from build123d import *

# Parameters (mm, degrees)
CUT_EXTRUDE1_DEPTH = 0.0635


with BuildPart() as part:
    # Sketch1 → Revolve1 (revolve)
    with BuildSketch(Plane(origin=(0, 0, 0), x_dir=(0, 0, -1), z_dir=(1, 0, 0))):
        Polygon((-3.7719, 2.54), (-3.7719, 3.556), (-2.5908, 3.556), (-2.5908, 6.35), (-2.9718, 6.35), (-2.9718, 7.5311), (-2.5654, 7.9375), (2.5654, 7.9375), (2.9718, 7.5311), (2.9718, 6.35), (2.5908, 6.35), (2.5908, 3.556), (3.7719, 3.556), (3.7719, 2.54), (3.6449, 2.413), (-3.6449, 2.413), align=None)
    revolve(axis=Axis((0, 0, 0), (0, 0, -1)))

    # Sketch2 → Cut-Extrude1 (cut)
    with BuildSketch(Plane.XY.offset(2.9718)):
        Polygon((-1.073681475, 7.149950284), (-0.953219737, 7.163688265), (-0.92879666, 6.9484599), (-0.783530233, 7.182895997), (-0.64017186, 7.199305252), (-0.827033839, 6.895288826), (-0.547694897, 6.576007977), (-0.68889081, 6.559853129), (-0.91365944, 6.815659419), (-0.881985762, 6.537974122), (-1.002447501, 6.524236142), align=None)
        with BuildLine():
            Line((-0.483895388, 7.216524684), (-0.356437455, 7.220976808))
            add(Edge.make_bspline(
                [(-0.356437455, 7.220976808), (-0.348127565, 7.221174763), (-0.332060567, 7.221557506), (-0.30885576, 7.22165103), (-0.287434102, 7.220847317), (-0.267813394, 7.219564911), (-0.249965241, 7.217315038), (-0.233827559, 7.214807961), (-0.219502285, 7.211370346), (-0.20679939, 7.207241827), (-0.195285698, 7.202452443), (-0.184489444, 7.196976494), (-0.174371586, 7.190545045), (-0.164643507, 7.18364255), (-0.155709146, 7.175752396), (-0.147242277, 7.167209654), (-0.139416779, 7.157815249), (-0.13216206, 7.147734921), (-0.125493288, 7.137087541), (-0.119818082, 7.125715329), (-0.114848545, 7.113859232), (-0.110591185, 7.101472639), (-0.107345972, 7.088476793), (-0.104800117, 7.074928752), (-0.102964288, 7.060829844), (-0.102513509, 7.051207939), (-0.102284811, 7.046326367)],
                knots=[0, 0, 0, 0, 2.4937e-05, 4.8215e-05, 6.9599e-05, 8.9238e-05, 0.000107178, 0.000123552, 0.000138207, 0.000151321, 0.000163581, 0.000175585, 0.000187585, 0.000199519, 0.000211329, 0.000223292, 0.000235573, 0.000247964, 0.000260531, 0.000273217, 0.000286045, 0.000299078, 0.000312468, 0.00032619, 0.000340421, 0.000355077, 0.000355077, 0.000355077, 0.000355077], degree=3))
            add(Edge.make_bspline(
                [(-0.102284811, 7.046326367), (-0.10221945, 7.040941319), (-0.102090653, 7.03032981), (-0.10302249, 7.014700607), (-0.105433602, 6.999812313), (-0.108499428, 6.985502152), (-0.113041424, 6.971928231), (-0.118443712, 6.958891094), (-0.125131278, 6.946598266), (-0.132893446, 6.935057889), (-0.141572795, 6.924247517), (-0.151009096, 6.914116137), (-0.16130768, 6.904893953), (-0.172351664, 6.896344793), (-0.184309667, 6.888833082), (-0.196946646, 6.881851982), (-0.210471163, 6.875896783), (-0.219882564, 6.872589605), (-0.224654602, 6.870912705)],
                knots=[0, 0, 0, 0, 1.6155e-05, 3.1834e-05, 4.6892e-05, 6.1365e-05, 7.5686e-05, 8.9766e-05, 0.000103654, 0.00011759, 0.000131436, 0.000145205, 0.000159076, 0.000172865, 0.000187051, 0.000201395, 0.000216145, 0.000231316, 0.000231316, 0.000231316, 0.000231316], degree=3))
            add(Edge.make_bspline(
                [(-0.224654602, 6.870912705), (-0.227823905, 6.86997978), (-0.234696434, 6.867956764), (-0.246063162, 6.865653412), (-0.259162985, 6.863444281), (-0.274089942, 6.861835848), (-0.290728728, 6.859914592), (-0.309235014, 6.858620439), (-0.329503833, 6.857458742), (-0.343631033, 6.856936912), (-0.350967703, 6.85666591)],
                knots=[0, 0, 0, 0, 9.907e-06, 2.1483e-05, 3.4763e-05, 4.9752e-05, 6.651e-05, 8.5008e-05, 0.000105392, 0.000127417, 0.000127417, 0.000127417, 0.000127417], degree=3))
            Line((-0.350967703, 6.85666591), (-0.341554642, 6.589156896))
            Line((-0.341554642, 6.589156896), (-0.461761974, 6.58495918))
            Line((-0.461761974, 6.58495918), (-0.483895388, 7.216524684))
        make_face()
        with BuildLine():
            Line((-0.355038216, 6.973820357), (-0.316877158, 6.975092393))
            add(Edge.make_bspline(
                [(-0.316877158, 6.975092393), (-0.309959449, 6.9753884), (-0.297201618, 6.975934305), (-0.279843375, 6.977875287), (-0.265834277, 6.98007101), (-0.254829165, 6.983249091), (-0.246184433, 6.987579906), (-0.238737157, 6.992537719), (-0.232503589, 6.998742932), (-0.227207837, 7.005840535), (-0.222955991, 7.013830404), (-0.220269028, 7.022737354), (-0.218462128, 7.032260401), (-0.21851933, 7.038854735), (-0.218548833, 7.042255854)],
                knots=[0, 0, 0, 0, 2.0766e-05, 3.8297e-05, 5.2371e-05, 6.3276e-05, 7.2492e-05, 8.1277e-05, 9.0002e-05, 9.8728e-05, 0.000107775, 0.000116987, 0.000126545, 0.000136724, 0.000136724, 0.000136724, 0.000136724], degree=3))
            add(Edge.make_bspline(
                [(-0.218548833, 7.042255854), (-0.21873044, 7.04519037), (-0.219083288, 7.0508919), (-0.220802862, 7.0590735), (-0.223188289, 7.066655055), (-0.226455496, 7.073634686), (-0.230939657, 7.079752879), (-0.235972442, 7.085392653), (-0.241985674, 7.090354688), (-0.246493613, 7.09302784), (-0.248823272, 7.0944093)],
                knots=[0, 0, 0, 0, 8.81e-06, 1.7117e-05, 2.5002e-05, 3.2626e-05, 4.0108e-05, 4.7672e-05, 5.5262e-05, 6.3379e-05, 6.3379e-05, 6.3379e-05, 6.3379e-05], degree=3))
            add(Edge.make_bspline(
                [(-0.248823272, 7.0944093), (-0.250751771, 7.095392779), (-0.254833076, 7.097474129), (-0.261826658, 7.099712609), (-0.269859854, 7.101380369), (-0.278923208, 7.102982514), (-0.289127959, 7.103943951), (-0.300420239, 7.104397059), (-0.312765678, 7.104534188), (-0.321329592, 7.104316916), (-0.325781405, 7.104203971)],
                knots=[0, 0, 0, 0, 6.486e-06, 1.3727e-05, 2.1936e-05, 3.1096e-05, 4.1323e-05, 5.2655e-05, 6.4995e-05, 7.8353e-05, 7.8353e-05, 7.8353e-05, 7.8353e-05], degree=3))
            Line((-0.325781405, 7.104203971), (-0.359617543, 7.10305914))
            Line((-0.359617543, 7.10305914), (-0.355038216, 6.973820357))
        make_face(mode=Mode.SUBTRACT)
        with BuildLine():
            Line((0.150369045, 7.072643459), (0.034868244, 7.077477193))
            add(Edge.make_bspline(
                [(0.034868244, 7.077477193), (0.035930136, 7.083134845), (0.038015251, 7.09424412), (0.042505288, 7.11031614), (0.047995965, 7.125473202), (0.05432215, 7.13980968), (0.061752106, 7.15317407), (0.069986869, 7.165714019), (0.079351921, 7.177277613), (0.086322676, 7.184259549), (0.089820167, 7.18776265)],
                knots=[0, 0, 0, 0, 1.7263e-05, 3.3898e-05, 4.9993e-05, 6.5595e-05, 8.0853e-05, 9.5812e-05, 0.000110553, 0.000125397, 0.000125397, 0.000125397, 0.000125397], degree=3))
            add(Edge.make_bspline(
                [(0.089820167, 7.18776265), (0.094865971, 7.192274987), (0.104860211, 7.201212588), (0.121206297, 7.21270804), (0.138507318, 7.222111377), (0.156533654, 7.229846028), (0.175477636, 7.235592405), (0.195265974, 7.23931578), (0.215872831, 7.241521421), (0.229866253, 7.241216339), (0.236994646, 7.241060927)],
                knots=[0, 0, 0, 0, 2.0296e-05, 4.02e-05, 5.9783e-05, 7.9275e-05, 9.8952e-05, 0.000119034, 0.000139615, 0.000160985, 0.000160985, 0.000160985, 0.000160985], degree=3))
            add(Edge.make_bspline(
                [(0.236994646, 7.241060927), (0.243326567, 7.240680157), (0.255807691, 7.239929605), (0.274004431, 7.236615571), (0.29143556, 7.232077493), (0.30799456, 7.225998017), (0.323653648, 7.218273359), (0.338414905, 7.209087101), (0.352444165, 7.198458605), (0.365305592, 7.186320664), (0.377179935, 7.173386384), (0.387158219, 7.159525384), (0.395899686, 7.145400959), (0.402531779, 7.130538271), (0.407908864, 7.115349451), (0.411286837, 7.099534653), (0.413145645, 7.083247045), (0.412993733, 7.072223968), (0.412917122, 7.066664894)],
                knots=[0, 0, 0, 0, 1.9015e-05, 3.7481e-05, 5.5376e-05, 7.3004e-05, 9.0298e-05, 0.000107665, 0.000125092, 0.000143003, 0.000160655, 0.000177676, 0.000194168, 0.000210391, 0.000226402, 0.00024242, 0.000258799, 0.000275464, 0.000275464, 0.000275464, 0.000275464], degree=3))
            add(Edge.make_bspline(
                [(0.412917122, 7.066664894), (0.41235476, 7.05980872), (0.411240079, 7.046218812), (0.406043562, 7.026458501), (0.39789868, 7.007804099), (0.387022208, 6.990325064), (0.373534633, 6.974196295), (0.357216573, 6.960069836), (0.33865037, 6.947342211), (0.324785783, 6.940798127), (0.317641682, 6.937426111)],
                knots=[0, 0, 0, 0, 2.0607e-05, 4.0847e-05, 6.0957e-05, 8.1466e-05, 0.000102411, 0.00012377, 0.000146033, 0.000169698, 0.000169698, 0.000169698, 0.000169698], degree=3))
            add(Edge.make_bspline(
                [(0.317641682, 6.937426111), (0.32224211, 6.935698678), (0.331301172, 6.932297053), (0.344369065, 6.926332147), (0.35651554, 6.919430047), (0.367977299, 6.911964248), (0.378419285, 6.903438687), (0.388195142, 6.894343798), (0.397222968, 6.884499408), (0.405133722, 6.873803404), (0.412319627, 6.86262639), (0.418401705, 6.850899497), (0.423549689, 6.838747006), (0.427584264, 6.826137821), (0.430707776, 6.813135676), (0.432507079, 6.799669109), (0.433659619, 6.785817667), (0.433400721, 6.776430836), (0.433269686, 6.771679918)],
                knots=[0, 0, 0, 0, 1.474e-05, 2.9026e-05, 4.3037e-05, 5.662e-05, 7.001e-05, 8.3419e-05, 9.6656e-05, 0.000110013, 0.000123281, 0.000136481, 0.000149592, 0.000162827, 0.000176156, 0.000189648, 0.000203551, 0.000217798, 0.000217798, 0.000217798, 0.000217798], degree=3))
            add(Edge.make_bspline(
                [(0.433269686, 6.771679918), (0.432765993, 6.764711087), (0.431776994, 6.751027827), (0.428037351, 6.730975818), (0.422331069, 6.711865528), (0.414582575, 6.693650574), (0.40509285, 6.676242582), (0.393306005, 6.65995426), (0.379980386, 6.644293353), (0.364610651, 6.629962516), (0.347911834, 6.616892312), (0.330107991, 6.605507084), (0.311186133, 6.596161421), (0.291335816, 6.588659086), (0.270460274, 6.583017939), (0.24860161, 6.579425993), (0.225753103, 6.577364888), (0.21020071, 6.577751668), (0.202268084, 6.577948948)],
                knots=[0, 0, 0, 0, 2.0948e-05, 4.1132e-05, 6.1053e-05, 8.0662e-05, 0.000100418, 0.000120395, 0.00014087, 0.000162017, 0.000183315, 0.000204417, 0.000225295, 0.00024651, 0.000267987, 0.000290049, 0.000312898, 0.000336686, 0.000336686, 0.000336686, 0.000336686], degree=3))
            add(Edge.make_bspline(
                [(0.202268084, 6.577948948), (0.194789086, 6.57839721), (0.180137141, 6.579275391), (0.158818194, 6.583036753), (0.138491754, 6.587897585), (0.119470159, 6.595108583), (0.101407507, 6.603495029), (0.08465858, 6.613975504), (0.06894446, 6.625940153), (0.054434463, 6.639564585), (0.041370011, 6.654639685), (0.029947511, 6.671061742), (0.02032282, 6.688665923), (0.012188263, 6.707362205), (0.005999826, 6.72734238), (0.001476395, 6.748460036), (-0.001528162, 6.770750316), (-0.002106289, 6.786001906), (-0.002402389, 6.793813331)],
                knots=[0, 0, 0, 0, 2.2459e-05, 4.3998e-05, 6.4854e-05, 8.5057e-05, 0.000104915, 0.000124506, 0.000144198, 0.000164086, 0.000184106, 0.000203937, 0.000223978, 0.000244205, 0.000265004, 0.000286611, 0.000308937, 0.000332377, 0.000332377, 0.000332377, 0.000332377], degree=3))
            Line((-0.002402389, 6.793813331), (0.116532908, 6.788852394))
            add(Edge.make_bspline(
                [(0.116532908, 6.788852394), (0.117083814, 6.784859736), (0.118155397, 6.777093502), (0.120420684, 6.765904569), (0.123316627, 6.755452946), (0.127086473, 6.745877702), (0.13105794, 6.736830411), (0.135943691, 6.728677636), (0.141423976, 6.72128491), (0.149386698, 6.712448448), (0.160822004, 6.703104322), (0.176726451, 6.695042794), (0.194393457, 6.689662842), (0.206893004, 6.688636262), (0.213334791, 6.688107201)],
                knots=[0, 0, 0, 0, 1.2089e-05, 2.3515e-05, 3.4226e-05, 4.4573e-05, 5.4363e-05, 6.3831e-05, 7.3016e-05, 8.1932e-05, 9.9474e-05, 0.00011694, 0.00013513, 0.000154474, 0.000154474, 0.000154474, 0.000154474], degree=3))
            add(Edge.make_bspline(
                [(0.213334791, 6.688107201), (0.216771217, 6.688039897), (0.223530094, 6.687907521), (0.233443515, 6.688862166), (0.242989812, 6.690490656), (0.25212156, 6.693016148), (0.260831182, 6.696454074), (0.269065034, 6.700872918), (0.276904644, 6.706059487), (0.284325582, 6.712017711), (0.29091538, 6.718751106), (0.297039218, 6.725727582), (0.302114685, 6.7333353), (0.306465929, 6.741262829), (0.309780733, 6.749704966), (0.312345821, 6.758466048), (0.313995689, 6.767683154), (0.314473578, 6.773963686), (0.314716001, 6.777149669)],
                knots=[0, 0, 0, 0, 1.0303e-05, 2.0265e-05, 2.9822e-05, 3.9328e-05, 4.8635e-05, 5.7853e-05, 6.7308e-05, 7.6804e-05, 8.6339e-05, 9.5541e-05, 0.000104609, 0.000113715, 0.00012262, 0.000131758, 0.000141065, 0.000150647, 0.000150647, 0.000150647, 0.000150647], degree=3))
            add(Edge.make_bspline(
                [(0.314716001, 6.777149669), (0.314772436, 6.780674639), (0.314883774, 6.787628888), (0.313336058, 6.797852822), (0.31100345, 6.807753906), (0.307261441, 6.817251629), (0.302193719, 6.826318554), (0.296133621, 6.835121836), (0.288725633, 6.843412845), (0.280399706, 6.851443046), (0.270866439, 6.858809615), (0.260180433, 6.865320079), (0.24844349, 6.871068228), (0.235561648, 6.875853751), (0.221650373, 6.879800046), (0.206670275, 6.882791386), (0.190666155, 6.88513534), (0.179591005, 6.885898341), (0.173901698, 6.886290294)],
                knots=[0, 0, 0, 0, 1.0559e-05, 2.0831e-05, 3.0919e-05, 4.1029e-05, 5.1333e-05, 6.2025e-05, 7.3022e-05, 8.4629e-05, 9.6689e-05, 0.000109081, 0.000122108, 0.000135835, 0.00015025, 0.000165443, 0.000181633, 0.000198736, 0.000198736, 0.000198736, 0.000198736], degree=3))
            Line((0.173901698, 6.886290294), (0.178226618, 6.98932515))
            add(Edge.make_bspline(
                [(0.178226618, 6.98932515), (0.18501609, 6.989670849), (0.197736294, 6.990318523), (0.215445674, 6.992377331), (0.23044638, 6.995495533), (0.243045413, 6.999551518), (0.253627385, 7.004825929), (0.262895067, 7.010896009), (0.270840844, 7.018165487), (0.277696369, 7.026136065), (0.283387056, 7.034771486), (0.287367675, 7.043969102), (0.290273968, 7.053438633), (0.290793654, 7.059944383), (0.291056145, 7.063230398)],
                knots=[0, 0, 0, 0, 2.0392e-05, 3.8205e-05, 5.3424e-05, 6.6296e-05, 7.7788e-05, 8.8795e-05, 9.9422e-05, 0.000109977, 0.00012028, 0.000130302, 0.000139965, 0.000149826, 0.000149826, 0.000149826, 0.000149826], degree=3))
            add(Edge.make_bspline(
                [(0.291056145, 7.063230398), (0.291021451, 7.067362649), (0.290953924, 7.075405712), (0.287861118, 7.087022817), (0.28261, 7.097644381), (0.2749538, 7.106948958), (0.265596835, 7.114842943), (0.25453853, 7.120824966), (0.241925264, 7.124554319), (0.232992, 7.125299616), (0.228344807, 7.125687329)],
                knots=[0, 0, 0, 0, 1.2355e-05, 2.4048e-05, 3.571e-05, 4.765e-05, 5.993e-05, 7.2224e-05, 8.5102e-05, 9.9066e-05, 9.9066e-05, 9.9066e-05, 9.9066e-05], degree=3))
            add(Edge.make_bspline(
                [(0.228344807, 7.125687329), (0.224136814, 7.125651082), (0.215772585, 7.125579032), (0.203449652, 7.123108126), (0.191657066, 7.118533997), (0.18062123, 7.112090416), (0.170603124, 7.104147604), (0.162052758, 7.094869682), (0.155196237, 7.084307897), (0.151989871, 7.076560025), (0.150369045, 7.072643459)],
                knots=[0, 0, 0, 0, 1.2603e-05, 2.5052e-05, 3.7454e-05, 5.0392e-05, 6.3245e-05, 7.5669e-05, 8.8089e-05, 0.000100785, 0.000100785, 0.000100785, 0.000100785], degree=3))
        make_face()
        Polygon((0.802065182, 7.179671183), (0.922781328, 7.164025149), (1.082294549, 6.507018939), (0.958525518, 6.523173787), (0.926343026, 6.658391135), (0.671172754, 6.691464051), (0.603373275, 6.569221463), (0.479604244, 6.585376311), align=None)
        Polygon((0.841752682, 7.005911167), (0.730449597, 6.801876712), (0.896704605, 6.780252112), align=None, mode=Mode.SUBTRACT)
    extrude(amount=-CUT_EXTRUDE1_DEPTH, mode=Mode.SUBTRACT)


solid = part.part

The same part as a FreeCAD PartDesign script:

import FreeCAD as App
import Part
import Sketcher
from FreeCAD import Vector
Q = App.Units.Quantity

doc = App.newDocument("Part")
body = doc.addObject("PartDesign::Body", "Body")

# Sketch on YZ plane
sketch1 = body.newObject("Sketcher::SketchObject", "Sketch")
sketch1.AttachmentSupport = (doc.getObject("YZ_Plane"), [""])
sketch1.MapMode = "FlatFace"
sketch1.addGeometry([
    Part.LineSegment(Vector(3.556, 3.7719, 0), Vector(2.54, 3.7719, 0)),  # 0
    Part.LineSegment(Vector(2.54, 3.7719, 0), Vector(2.413, 3.6449, 0)),  # 1
    Part.LineSegment(Vector(2.413, 3.6449, 0), Vector(2.413, -3.6449, 0)),  # 2
    Part.LineSegment(Vector(2.413, -3.6449, 0), Vector(2.54, -3.7719, 0)),  # 3
    Part.LineSegment(Vector(2.54, -3.7719, 0), Vector(3.556, -3.7719, 0)),  # 4
    Part.LineSegment(Vector(3.556, -3.7719, 0), Vector(3.556, -2.5908, 0)),  # 5
    Part.LineSegment(Vector(3.556, -2.5908, 0), Vector(6.35, -2.5908, 0)),  # 6
    Part.LineSegment(Vector(6.35, -2.5908, 0), Vector(6.35, -2.9718, 0)),  # 7
    Part.LineSegment(Vector(6.35, -2.9718, 0), Vector(7.5311, -2.9718, 0)),  # 8
    Part.LineSegment(Vector(7.5311, -2.9718, 0), Vector(7.9375, -2.5654, 0)),  # 9
    Part.LineSegment(Vector(7.9375, -2.5654, 0), Vector(7.9375, 2.5654, 0)),  # 10
    Part.LineSegment(Vector(7.9375, 2.5654, 0), Vector(7.5311, 2.9718, 0)),  # 11
    Part.LineSegment(Vector(7.5311, 2.9718, 0), Vector(6.35, 2.9718, 0)),  # 12
    Part.LineSegment(Vector(6.35, 2.9718, 0), Vector(6.35, 2.5908, 0)),  # 13
    Part.LineSegment(Vector(6.35, 2.5908, 0), Vector(3.556, 2.5908, 0)),  # 14
    Part.LineSegment(Vector(3.556, 2.5908, 0), Vector(3.556, 3.7719, 0)),  # 15
], False)
sketch1.addConstraint([
    Sketcher.Constraint("Coincident", 0, 2, 1, 1),
    Sketcher.Constraint("Coincident", 1, 2, 2, 1),
    Sketcher.Constraint("Coincident", 2, 2, 3, 1),
    Sketcher.Constraint("Coincident", 3, 2, 4, 1),
    Sketcher.Constraint("Coincident", 4, 2, 5, 1),
    Sketcher.Constraint("Coincident", 5, 2, 6, 1),
    Sketcher.Constraint("Coincident", 6, 2, 7, 1),
    Sketcher.Constraint("Coincident", 7, 2, 8, 1),
    Sketcher.Constraint("Coincident", 8, 2, 9, 1),
    Sketcher.Constraint("Coincident", 9, 2, 10, 1),
    Sketcher.Constraint("Coincident", 10, 2, 11, 1),
    Sketcher.Constraint("Coincident", 11, 2, 12, 1),
    Sketcher.Constraint("Coincident", 12, 2, 13, 1),
    Sketcher.Constraint("Coincident", 13, 2, 14, 1),
    Sketcher.Constraint("Coincident", 14, 2, 15, 1),
    Sketcher.Constraint("Coincident", 15, 2, 0, 1),
    Sketcher.Constraint("Horizontal", 0),
    Sketcher.Constraint("Vertical", 2),
    Sketcher.Constraint("Horizontal", 4),
    Sketcher.Constraint("Vertical", 5),
    Sketcher.Constraint("Horizontal", 6),
    Sketcher.Constraint("Vertical", 7),
    Sketcher.Constraint("Horizontal", 8),
    Sketcher.Constraint("Vertical", 10),
    Sketcher.Constraint("Horizontal", 12),
    Sketcher.Constraint("Vertical", 13),
    Sketcher.Constraint("Horizontal", 14),
    Sketcher.Constraint("Vertical", 15),
    Sketcher.Constraint("Symmetric", 0, 2, 3, 2, -1),
    Sketcher.Constraint("Symmetric", 8, 2, 11, 2, -1),
    Sketcher.Constraint("Symmetric", 6, 2, 13, 2, -1),
    Sketcher.Constraint("Perpendicular", 1, 3),
    Sketcher.Constraint("Perpendicular", 3, 9),
    Sketcher.Constraint("Perpendicular", 9, 11),
    Sketcher.Constraint("Vertical", 5, 2, 14, 2),
    Sketcher.Constraint("Equal", 12, 5),
    Sketcher.Constraint("Equal", 1, 3),
    Sketcher.Constraint("DistanceX", 0, 2, 0, 1, Q("0.04 in")),
    Sketcher.Constraint("DistanceX", 6, 1, 6, 2, Q("0.11 in")),
    Sketcher.Constraint("DistanceX", -1, 1, 0, 2, Q("0.1 in")),
    Sketcher.Constraint("DistanceY", 2, 2, 2, 1, Q("0.287 in")),
    Sketcher.Constraint("DistanceY", 7, 2, 7, 1, Q("0.015 in")),
    Sketcher.Constraint("DistanceY", 10, 1, 10, 2, Q("0.202 in")),
    Sketcher.Constraint("DistanceX", 8, 1, 8, 2, Q("0.0465 in")),
    Sketcher.Constraint("DistanceX", -1, 1, 1, 2, Q("0.095 in")),
])
revolution = body.newObject("PartDesign::Revolution", "Revolution")
revolution.Profile = sketch1
revolution.ReferenceAxis = (sketch1, ["V_Axis"])
revolution.Angle = 360

# Sketch on XY plane
sketch2 = body.newObject("Sketcher::SketchObject", "Sketch001")
sketch2.AttachmentSupport = (doc.getObject("XY_Plane"), [""])
sketch2.MapMode = "FlatFace"
sketch2.AttachmentOffset = App.Placement(Vector(0, 0, 0.117 * 25.4), App.Rotation())
sketch2.addGeometry([
    Part.LineSegment(Vector(-0.95322, 7.163688, 0), Vector(-1.073681, 7.14995, 0)),  # 0
    Part.LineSegment(Vector(-1.073681, 7.14995, 0), Vector(-1.002448, 6.524236, 0)),  # 1
    Part.LineSegment(Vector(-1.002448, 6.524236, 0), Vector(-0.881986, 6.537974, 0)),  # 2
    Part.LineSegment(Vector(-0.881986, 6.537974, 0), Vector(-0.913659, 6.815659, 0)),  # 3
    Part.LineSegment(Vector(-0.913659, 6.815659, 0), Vector(-0.688891, 6.559853, 0)),  # 4
    Part.LineSegment(Vector(-0.688891, 6.559853, 0), Vector(-0.547695, 6.576008, 0)),  # 5
    Part.LineSegment(Vector(-0.547695, 6.576008, 0), Vector(-0.827034, 6.895289, 0)),  # 6
    Part.LineSegment(Vector(-0.827034, 6.895289, 0), Vector(-0.640172, 7.199305, 0)),  # 7
    Part.LineSegment(Vector(-0.640172, 7.199305, 0), Vector(-0.78353, 7.182896, 0)),  # 8
    Part.LineSegment(Vector(-0.78353, 7.182896, 0), Vector(-0.928797, 6.94846, 0)),  # 9
    Part.LineSegment(Vector(-0.928797, 6.94846, 0), Vector(-0.95322, 7.163688, 0)),  # 10
    Part.LineSegment(Vector(-0.356437, 7.220977, 0), Vector(-0.483895, 7.216525, 0)),  # 11
    Part.LineSegment(Vector(-0.483895, 7.216525, 0), Vector(-0.461762, 6.584959, 0)),  # 12
    Part.LineSegment(Vector(-0.461762, 6.584959, 0), Vector(-0.341555, 6.589157, 0)),  # 13
    Part.LineSegment(Vector(-0.341555, 6.589157, 0), Vector(-0.350968, 6.856666, 0)),  # 14
    Part.BSplineCurve([Vector(-0.224655, 6.870913, 0), Vector(-0.227824, 6.86998, 0), Vector(-0.234696, 6.867957, 0), Vector(-0.246063, 6.865653, 0), Vector(-0.259163, 6.863444, 0), Vector(-0.27409, 6.861836, 0), Vector(-0.290729, 6.859915, 0), Vector(-0.309235, 6.85862, 0), Vector(-0.329504, 6.857459, 0), Vector(-0.343631, 6.856937, 0), Vector(-0.350968, 6.856666, 0)], [4, 1, 1, 1, 1, 1, 1, 1, 4], [0, 0.000009907, 0.000021483, 0.000034763, 0.000049752, 0.00006651, 0.000085008, 0.000105392, 0.000127417], False, 3, [1, 1, 1, 1, 1, 1, 1, 1, 1, 1, 1], False),  # 15
    Part.BSplineCurve([Vector(-0.102285, 7.046326, 0), Vector(-0.102219, 7.040941, 0), Vector(-0.102091, 7.03033, 0), Vector(-0.103022, 7.014701, 0), Vector(-0.105434, 6.999812, 0), Vector(-0.108499, 6.985502, 0), Vector(-0.113041, 6.971928, 0), Vector(-0.118444, 6.958891, 0), Vector(-0.125131, 6.946598, 0), Vector(-0.132893, 6.935058, 0), Vector(-0.141573, 6.924248, 0), Vector(-0.151009, 6.914116, 0), Vector(-0.161308, 6.904894, 0), Vector(-0.172352, 6.896345, 0), Vector(-0.18431, 6.888833, 0), Vector(-0.196947, 6.881852, 0), Vector(-0.210471, 6.875897, 0), Vector(-0.219883, 6.87259, 0), Vector(-0.224655, 6.870913, 0)], [4, 1, 1, 1, 1, 1, 1, 1, 1, 1, 1, 1, 1, 1, 1, 1, 4], [0, 0.000016155, 0.000031834, 0.000046892, 0.000061365, 0.000075686, 0.000089766, 0.000103654, 0.00011759, 0.000131436, 0.000145205, 0.000159076, 0.000172865, 0.000187051, 0.000201395, 0.000216145, 0.000231316], False, 3, [1, 1, 1, 1, 1, 1, 1, 1, 1, 1, 1, 1, 1, 1, 1, 1, 1, 1, 1], False),  # 16
    Part.BSplineCurve([Vector(-0.356437, 7.220977, 0), Vector(-0.348128, 7.221175, 0), Vector(-0.332061, 7.221558, 0), Vector(-0.308856, 7.221651, 0), Vector(-0.287434, 7.220847, 0), Vector(-0.267813, 7.219565, 0), Vector(-0.249965, 7.217315, 0), Vector(-0.233828, 7.214808, 0), Vector(-0.219502, 7.21137, 0), Vector(-0.206799, 7.207242, 0), Vector(-0.195286, 7.202452, 0), Vector(-0.184489, 7.196976, 0), Vector(-0.174372, 7.190545, 0), Vector(-0.164644, 7.183643, 0), Vector(-0.155709, 7.175752, 0), Vector(-0.147242, 7.16721, 0), Vector(-0.139417, 7.157815, 0), Vector(-0.132162, 7.147735, 0), Vector(-0.125493, 7.137088, 0), Vector(-0.119818, 7.125715, 0), Vector(-0.114849, 7.113859, 0), Vector(-0.110591, 7.101473, 0), Vector(-0.107346, 7.088477, 0), Vector(-0.1048, 7.074929, 0), Vector(-0.102964, 7.06083, 0), Vector(-0.102514, 7.051208, 0), Vector(-0.102285, 7.046326, 0)], [4, 1, 1, 1, 1, 1, 1, 1, 1, 1, 1, 1, 1, 1, 1, 1, 1, 1, 1, 1, 1, 1, 1, 1, 4], [0, 0.000024937, 0.000048215, 0.000069599, 0.000089238, 0.000107178, 0.000123552, 0.000138207, 0.000151321, 0.000163581, 0.000175585, 0.000187585, 0.000199519, 0.000211329, 0.000223292, 0.000235573, 0.000247964, 0.000260531, 0.000273217, 0.000286045, 0.000299078, 0.000312468, 0.00032619, 0.000340421, 0.000355077], False, 3, [1, 1, 1, 1, 1, 1, 1, 1, 1, 1, 1, 1, 1, 1, 1, 1, 1, 1, 1, 1, 1, 1, 1, 1, 1, 1, 1], False),  # 17
    Part.LineSegment(Vector(-0.355038, 6.97382, 0), Vector(-0.359618, 7.103059, 0)),  # 18
    Part.LineSegment(Vector(-0.359618, 7.103059, 0), Vector(-0.325781, 7.104204, 0)),  # 19
    Part.BSplineCurve([Vector(-0.248823, 7.094409, 0), Vector(-0.250752, 7.095393, 0), Vector(-0.254833, 7.097474, 0), Vector(-0.261827, 7.099713, 0), Vector(-0.26986, 7.10138, 0), Vector(-0.278923, 7.102983, 0), Vector(-0.289128, 7.103944, 0), Vector(-0.30042, 7.104397, 0), Vector(-0.312766, 7.104534, 0), Vector(-0.32133, 7.104317, 0), Vector(-0.325781, 7.104204, 0)], [4, 1, 1, 1, 1, 1, 1, 1, 4], [0, 0.000006486, 0.000013727, 0.000021936, 0.000031096, 0.000041323, 0.000052655, 0.000064995, 0.000078353], False, 3, [1, 1, 1, 1, 1, 1, 1, 1, 1, 1, 1], False),  # 20
    Part.BSplineCurve([Vector(-0.218549, 7.042256, 0), Vector(-0.21873, 7.04519, 0), Vector(-0.219083, 7.050892, 0), Vector(-0.220803, 7.059074, 0), Vector(-0.223188, 7.066655, 0), Vector(-0.226455, 7.073635, 0), Vector(-0.23094, 7.079753, 0), Vector(-0.235972, 7.085393, 0), Vector(-0.241986, 7.090355, 0), Vector(-0.246494, 7.093028, 0), Vector(-0.248823, 7.094409, 0)], [4, 1, 1, 1, 1, 1, 1, 1, 4], [0, 0.00000881, 0.000017117, 0.000025002, 0.000032626, 0.000040108, 0.000047672, 0.000055262, 0.000063379], False, 3, [1, 1, 1, 1, 1, 1, 1, 1, 1, 1, 1], False),  # 21
    Part.BSplineCurve([Vector(-0.316877, 6.975092, 0), Vector(-0.309959, 6.975388, 0), Vector(-0.297202, 6.975934, 0), Vector(-0.279843, 6.977875, 0), Vector(-0.265834, 6.980071, 0), Vector(-0.254829, 6.983249, 0), Vector(-0.246184, 6.98758, 0), Vector(-0.238737, 6.992538, 0), Vector(-0.232504, 6.998743, 0), Vector(-0.227208, 7.005841, 0), Vector(-0.222956, 7.01383, 0), Vector(-0.220269, 7.022737, 0), Vector(-0.218462, 7.03226, 0), Vector(-0.218519, 7.038855, 0), Vector(-0.218549, 7.042256, 0)], [4, 1, 1, 1, 1, 1, 1, 1, 1, 1, 1, 1, 4], [0, 0.000020766, 0.000038297, 0.000052371, 0.000063276, 0.000072492, 0.000081277, 0.000090002, 0.000098728, 0.000107775, 0.000116987, 0.000126545, 0.000136724], False, 3, [1, 1, 1, 1, 1, 1, 1, 1, 1, 1, 1, 1, 1, 1, 1], False),  # 22
    Part.LineSegment(Vector(-0.316877, 6.975092, 0), Vector(-0.355038, 6.97382, 0)),  # 23
    Part.LineSegment(Vector(0.034868, 7.077477, 0), Vector(0.150369, 7.072643, 0)),  # 24
    Part.BSplineCurve([Vector(0.228345, 7.125687, 0), Vector(0.224137, 7.125651, 0), Vector(0.215773, 7.125579, 0), Vector(0.20345, 7.123108, 0), Vector(0.191657, 7.118534, 0), Vector(0.180621, 7.11209, 0), Vector(0.170603, 7.104148, 0), Vector(0.162053, 7.09487, 0), Vector(0.155196, 7.084308, 0), Vector(0.15199, 7.07656, 0), Vector(0.150369, 7.072643, 0)], [4, 1, 1, 1, 1, 1, 1, 1, 4], [0, 0.000012603, 0.000025052, 0.000037454, 0.000050392, 0.000063245, 0.000075669, 0.000088089, 0.000100785], False, 3, [1, 1, 1, 1, 1, 1, 1, 1, 1, 1, 1], False),  # 25
    Part.BSplineCurve([Vector(0.291056, 7.06323, 0), Vector(0.291021, 7.067363, 0), Vector(0.290954, 7.075406, 0), Vector(0.287861, 7.087023, 0), Vector(0.28261, 7.097644, 0), Vector(0.274954, 7.106949, 0), Vector(0.265597, 7.114843, 0), Vector(0.254539, 7.120825, 0), Vector(0.241925, 7.124554, 0), Vector(0.232992, 7.1253, 0), Vector(0.228345, 7.125687, 0)], [4, 1, 1, 1, 1, 1, 1, 1, 4], [0, 0.000012355, 0.000024048, 0.00003571, 0.00004765, 0.00005993, 0.000072224, 0.000085102, 0.000099066], False, 3, [1, 1, 1, 1, 1, 1, 1, 1, 1, 1, 1], False),  # 26
    Part.BSplineCurve([Vector(0.178227, 6.989325, 0), Vector(0.185016, 6.989671, 0), Vector(0.197736, 6.990319, 0), Vector(0.215446, 6.992377, 0), Vector(0.230446, 6.995496, 0), Vector(0.243045, 6.999552, 0), Vector(0.253627, 7.004826, 0), Vector(0.262895, 7.010896, 0), Vector(0.270841, 7.018165, 0), Vector(0.277696, 7.026136, 0), Vector(0.283387, 7.034771, 0), Vector(0.287368, 7.043969, 0), Vector(0.290274, 7.053439, 0), Vector(0.290794, 7.059944, 0), Vector(0.291056, 7.06323, 0)], [4, 1, 1, 1, 1, 1, 1, 1, 1, 1, 1, 1, 4], [0, 0.000020392, 0.000038205, 0.000053424, 0.000066296, 0.000077788, 0.000088795, 0.000099422, 0.000109977, 0.00012028, 0.000130302, 0.000139965, 0.000149826], False, 3, [1, 1, 1, 1, 1, 1, 1, 1, 1, 1, 1, 1, 1, 1, 1], False),  # 27
    Part.LineSegment(Vector(0.178227, 6.989325, 0), Vector(0.173902, 6.88629, 0)),  # 28
    Part.BSplineCurve([Vector(0.314716, 6.77715, 0), Vector(0.314772, 6.780675, 0), Vector(0.314884, 6.787629, 0), Vector(0.313336, 6.797853, 0), Vector(0.311003, 6.807754, 0), Vector(0.307261, 6.817252, 0), Vector(0.302194, 6.826319, 0), Vector(0.296134, 6.835122, 0), Vector(0.288726, 6.843413, 0), Vector(0.2804, 6.851443, 0), Vector(0.270866, 6.85881, 0), Vector(0.26018, 6.86532, 0), Vector(0.248443, 6.871068, 0), Vector(0.235562, 6.875854, 0), Vector(0.22165, 6.8798, 0), Vector(0.20667, 6.882791, 0), Vector(0.190666, 6.885135, 0), Vector(0.179591, 6.885898, 0), Vector(0.173902, 6.88629, 0)], [4, 1, 1, 1, 1, 1, 1, 1, 1, 1, 1, 1, 1, 1, 1, 1, 4], [0, 0.000010559, 0.000020831, 0.000030919, 0.000041029, 0.000051333, 0.000062025, 0.000073022, 0.000084629, 0.000096689, 0.000109081, 0.000122108, 0.000135835, 0.00015025, 0.000165443, 0.000181633, 0.000198736], False, 3, [1, 1, 1, 1, 1, 1, 1, 1, 1, 1, 1, 1, 1, 1, 1, 1, 1, 1, 1], False),  # 29
    Part.BSplineCurve([Vector(0.213335, 6.688107, 0), Vector(0.216771, 6.68804, 0), Vector(0.22353, 6.687908, 0), Vector(0.233444, 6.688862, 0), Vector(0.24299, 6.690491, 0), Vector(0.252122, 6.693016, 0), Vector(0.260831, 6.696454, 0), Vector(0.269065, 6.700873, 0), Vector(0.276905, 6.706059, 0), Vector(0.284326, 6.712018, 0), Vector(0.290915, 6.718751, 0), Vector(0.297039, 6.725728, 0), Vector(0.302115, 6.733335, 0), Vector(0.306466, 6.741263, 0), Vector(0.309781, 6.749705, 0), Vector(0.312346, 6.758466, 0), Vector(0.313996, 6.767683, 0), Vector(0.314474, 6.773964, 0), Vector(0.314716, 6.77715, 0)], [4, 1, 1, 1, 1, 1, 1, 1, 1, 1, 1, 1, 1, 1, 1, 1, 4], [0, 0.000010303, 0.000020265, 0.000029822, 0.000039328, 0.000048635, 0.000057853, 0.000067308, 0.000076804, 0.000086339, 0.000095541, 0.000104609, 0.000113715, 0.00012262, 0.000131758, 0.000141065, 0.000150647], False, 3, [1, 1, 1, 1, 1, 1, 1, 1, 1, 1, 1, 1, 1, 1, 1, 1, 1, 1, 1], False),  # 30
    Part.BSplineCurve([Vector(0.116533, 6.788852, 0), Vector(0.117084, 6.78486, 0), Vector(0.118155, 6.777094, 0), Vector(0.120421, 6.765905, 0), Vector(0.123317, 6.755453, 0), Vector(0.127086, 6.745878, 0), Vector(0.131058, 6.73683, 0), Vector(0.135944, 6.728678, 0), Vector(0.141424, 6.721285, 0), Vector(0.149387, 6.712448, 0), Vector(0.160822, 6.703104, 0), Vector(0.176726, 6.695043, 0), Vector(0.194393, 6.689663, 0), Vector(0.206893, 6.688636, 0), Vector(0.213335, 6.688107, 0)], [4, 1, 1, 1, 1, 1, 1, 1, 1, 1, 1, 1, 4], [0, 0.000012089, 0.000023515, 0.000034226, 0.000044573, 0.000054363, 0.000063831, 0.000073016, 0.000081932, 0.000099474, 0.00011694, 0.00013513, 0.000154474], False, 3, [1, 1, 1, 1, 1, 1, 1, 1, 1, 1, 1, 1, 1, 1, 1], False),  # 31
    Part.LineSegment(Vector(0.116533, 6.788852, 0), Vector(-0.002402, 6.793813, 0)),  # 32
    Part.BSplineCurve([Vector(0.202268, 6.577949, 0), Vector(0.194789, 6.578397, 0), Vector(0.180137, 6.579275, 0), Vector(0.158818, 6.583037, 0), Vector(0.138492, 6.587898, 0), Vector(0.11947, 6.595109, 0), Vector(0.101408, 6.603495, 0), Vector(0.084659, 6.613976, 0), Vector(0.068944, 6.62594, 0), Vector(0.054434, 6.639565, 0), Vector(0.04137, 6.65464, 0), Vector(0.029948, 6.671062, 0), Vector(0.020323, 6.688666, 0), Vector(0.012188, 6.707362, 0), Vector(0.006, 6.727342, 0), Vector(0.001476, 6.74846, 0), Vector(-0.001528, 6.77075, 0), Vector(-0.002106, 6.786002, 0), Vector(-0.002402, 6.793813, 0)], [4, 1, 1, 1, 1, 1, 1, 1, 1, 1, 1, 1, 1, 1, 1, 1, 4], [0, 0.000022459, 0.000043998, 0.000064854, 0.000085057, 0.000104915, 0.000124506, 0.000144198, 0.000164086, 0.000184106, 0.000203937, 0.000223978, 0.000244205, 0.000265004, 0.000286611, 0.000308937, 0.000332377], False, 3, [1, 1, 1, 1, 1, 1, 1, 1, 1, 1, 1, 1, 1, 1, 1, 1, 1, 1, 1], False),  # 33
    Part.BSplineCurve([Vector(0.43327, 6.77168, 0), Vector(0.432766, 6.764711, 0), Vector(0.431777, 6.751028, 0), Vector(0.428037, 6.730976, 0), Vector(0.422331, 6.711866, 0), Vector(0.414583, 6.693651, 0), Vector(0.405093, 6.676243, 0), Vector(0.393306, 6.659954, 0), Vector(0.37998, 6.644293, 0), Vector(0.364611, 6.629963, 0), Vector(0.347912, 6.616892, 0), Vector(0.330108, 6.605507, 0), Vector(0.311186, 6.596161, 0), Vector(0.291336, 6.588659, 0), Vector(0.27046, 6.583018, 0), Vector(0.248602, 6.579426, 0), Vector(0.225753, 6.577365, 0), Vector(0.210201, 6.577752, 0), Vector(0.202268, 6.577949, 0)], [4, 1, 1, 1, 1, 1, 1, 1, 1, 1, 1, 1, 1, 1, 1, 1, 4], [0, 0.000020948, 0.000041132, 0.000061053, 0.000080662, 0.000100418, 0.000120395, 0.00014087, 0.000162017, 0.000183315, 0.000204417, 0.000225295, 0.00024651, 0.000267987, 0.000290049, 0.000312898, 0.000336686], False, 3, [1, 1, 1, 1, 1, 1, 1, 1, 1, 1, 1, 1, 1, 1, 1, 1, 1, 1, 1], False),  # 34
    Part.BSplineCurve([Vector(0.317642, 6.937426, 0), Vector(0.322242, 6.935699, 0), Vector(0.331301, 6.932297, 0), Vector(0.344369, 6.926332, 0), Vector(0.356516, 6.91943, 0), Vector(0.367977, 6.911964, 0), Vector(0.378419, 6.903439, 0), Vector(0.388195, 6.894344, 0), Vector(0.397223, 6.884499, 0), Vector(0.405134, 6.873803, 0), Vector(0.41232, 6.862626, 0), Vector(0.418402, 6.850899, 0), Vector(0.42355, 6.838747, 0), Vector(0.427584, 6.826138, 0), Vector(0.430708, 6.813136, 0), Vector(0.432507, 6.799669, 0), Vector(0.43366, 6.785818, 0), Vector(0.433401, 6.776431, 0), Vector(0.43327, 6.77168, 0)], [4, 1, 1, 1, 1, 1, 1, 1, 1, 1, 1, 1, 1, 1, 1, 1, 4], [0, 0.00001474, 0.000029026, 0.000043037, 0.00005662, 0.00007001, 0.000083419, 0.000096656, 0.000110013, 0.000123281, 0.000136481, 0.000149592, 0.000162827, 0.000176156, 0.000189648, 0.000203551, 0.000217798], False, 3, [1, 1, 1, 1, 1, 1, 1, 1, 1, 1, 1, 1, 1, 1, 1, 1, 1, 1, 1], False),  # 35
    Part.BSplineCurve([Vector(0.412917, 7.066665, 0), Vector(0.412355, 7.059809, 0), Vector(0.41124, 7.046219, 0), Vector(0.406044, 7.026459, 0), Vector(0.397899, 7.007804, 0), Vector(0.387022, 6.990325, 0), Vector(0.373535, 6.974196, 0), Vector(0.357217, 6.96007, 0), Vector(0.33865, 6.947342, 0), Vector(0.324786, 6.940798, 0), Vector(0.317642, 6.937426, 0)], [4, 1, 1, 1, 1, 1, 1, 1, 4], [0, 0.000020607, 0.000040847, 0.000060957, 0.000081466, 0.000102411, 0.00012377, 0.000146033, 0.000169698], False, 3, [1, 1, 1, 1, 1, 1, 1, 1, 1, 1, 1], False),  # 36
    Part.BSplineCurve([Vector(0.236995, 7.241061, 0), Vector(0.243327, 7.24068, 0), Vector(0.255808, 7.23993, 0), Vector(0.274004, 7.236616, 0), Vector(0.291436, 7.232077, 0), Vector(0.307995, 7.225998, 0), Vector(0.323654, 7.218273, 0), Vector(0.338415, 7.209087, 0), Vector(0.352444, 7.198459, 0), Vector(0.365306, 7.186321, 0), Vector(0.37718, 7.173386, 0), Vector(0.387158, 7.159525, 0), Vector(0.3959, 7.145401, 0), Vector(0.402532, 7.130538, 0), Vector(0.407909, 7.115349, 0), Vector(0.411287, 7.099535, 0), Vector(0.413146, 7.083247, 0), Vector(0.412994, 7.072224, 0), Vector(0.412917, 7.066665, 0)], [4, 1, 1, 1, 1, 1, 1, 1, 1, 1, 1, 1, 1, 1, 1, 1, 4], [0, 0.000019015, 0.000037481, 0.000055376, 0.000073004, 0.000090298, 0.000107665, 0.000125092, 0.000143003, 0.000160655, 0.000177676, 0.000194168, 0.000210391, 0.000226402, 0.00024242, 0.000258799, 0.000275464], False, 3, [1, 1, 1, 1, 1, 1, 1, 1, 1, 1, 1, 1, 1, 1, 1, 1, 1, 1, 1], False),  # 37
    Part.BSplineCurve([Vector(0.08982, 7.187763, 0), Vector(0.094866, 7.192275, 0), Vector(0.10486, 7.201213, 0), Vector(0.121206, 7.212708, 0), Vector(0.138507, 7.222111, 0), Vector(0.156534, 7.229846, 0), Vector(0.175478, 7.235592, 0), Vector(0.195266, 7.239316, 0), Vector(0.215873, 7.241521, 0), Vector(0.229866, 7.241216, 0), Vector(0.236995, 7.241061, 0)], [4, 1, 1, 1, 1, 1, 1, 1, 4], [0, 0.000020296, 0.0000402, 0.000059783, 0.000079275, 0.000098952, 0.000119034, 0.000139615, 0.000160985], False, 3, [1, 1, 1, 1, 1, 1, 1, 1, 1, 1, 1], False),  # 38
    Part.BSplineCurve([Vector(0.034868, 7.077477, 0), Vector(0.03593, 7.083135, 0), Vector(0.038015, 7.094244, 0), Vector(0.042505, 7.110316, 0), Vector(0.047996, 7.125473, 0), Vector(0.054322, 7.13981, 0), Vector(0.061752, 7.153174, 0), Vector(0.069987, 7.165714, 0), Vector(0.079352, 7.177278, 0), Vector(0.086323, 7.18426, 0), Vector(0.08982, 7.187763, 0)], [4, 1, 1, 1, 1, 1, 1, 1, 4], [0, 0.000017263, 0.000033898, 0.000049993, 0.000065595, 0.000080853, 0.000095812, 0.000110553, 0.000125397], False, 3, [1, 1, 1, 1, 1, 1, 1, 1, 1, 1, 1], False),  # 39
    Part.LineSegment(Vector(0.922781, 7.164025, 0), Vector(0.802065, 7.179671, 0)),  # 40
    Part.LineSegment(Vector(0.802065, 7.179671, 0), Vector(0.479604, 6.585376, 0)),  # 41
    Part.LineSegment(Vector(0.479604, 6.585376, 0), Vector(0.603373, 6.569221, 0)),  # 42
    Part.LineSegment(Vector(0.603373, 6.569221, 0), Vector(0.671173, 6.691464, 0)),  # 43
    Part.LineSegment(Vector(0.671173, 6.691464, 0), Vector(0.926343, 6.658391, 0)),  # 44
    Part.LineSegment(Vector(0.926343, 6.658391, 0), Vector(0.958526, 6.523174, 0)),  # 45
    Part.LineSegment(Vector(0.958526, 6.523174, 0), Vector(1.082295, 6.507019, 0)),  # 46
    Part.LineSegment(Vector(1.082295, 6.507019, 0), Vector(0.922781, 7.164025, 0)),  # 47
    Part.LineSegment(Vector(0.841753, 7.005911, 0), Vector(0.896705, 6.780252, 0)),  # 48
    Part.LineSegment(Vector(0.896705, 6.780252, 0), Vector(0.73045, 6.801877, 0)),  # 49
    Part.LineSegment(Vector(0.73045, 6.801877, 0), Vector(0.841753, 7.005911, 0)),  # 50
], False)
sketch2.addConstraint([
    Sketcher.Constraint("Block", 15),
    Sketcher.Constraint("Block", 16),
    Sketcher.Constraint("Block", 17),
    Sketcher.Constraint("Block", 20),
    Sketcher.Constraint("Block", 21),
    Sketcher.Constraint("Block", 22),
    Sketcher.Constraint("Block", 25),
    Sketcher.Constraint("Block", 26),
    Sketcher.Constraint("Block", 27),
    Sketcher.Constraint("Block", 29),
    Sketcher.Constraint("Block", 30),
    Sketcher.Constraint("Block", 31),
    Sketcher.Constraint("Block", 33),
    Sketcher.Constraint("Block", 34),
    Sketcher.Constraint("Block", 35),
    Sketcher.Constraint("Block", 36),
    Sketcher.Constraint("Block", 37),
    Sketcher.Constraint("Block", 38),
    Sketcher.Constraint("Block", 39),
    Sketcher.Constraint("Coincident", 0, 2, 1, 1),
    Sketcher.Constraint("Coincident", 1, 2, 2, 1),
    Sketcher.Constraint("Coincident", 2, 2, 3, 1),
    Sketcher.Constraint("Coincident", 3, 2, 4, 1),
    Sketcher.Constraint("Coincident", 4, 2, 5, 1),
    Sketcher.Constraint("Coincident", 5, 2, 6, 1),
    Sketcher.Constraint("Coincident", 6, 2, 7, 1),
    Sketcher.Constraint("Coincident", 7, 2, 8, 1),
    Sketcher.Constraint("Coincident", 8, 2, 9, 1),
    Sketcher.Constraint("Coincident", 9, 2, 10, 1),
    Sketcher.Constraint("Coincident", 10, 2, 0, 1),
    Sketcher.Constraint("Coincident", 11, 2, 12, 1),
    Sketcher.Constraint("Coincident", 12, 2, 13, 1),
    Sketcher.Constraint("Coincident", 13, 2, 14, 1),
    Sketcher.Constraint("Coincident", 14, 2, 15, 2),
    Sketcher.Constraint("Coincident", 17, 1, 11, 1),
    Sketcher.Constraint("Coincident", 18, 2, 19, 1),
    Sketcher.Constraint("Coincident", 19, 2, 20, 2),
    Sketcher.Constraint("Coincident", 22, 1, 23, 1),
    Sketcher.Constraint("Coincident", 23, 2, 18, 1),
    Sketcher.Constraint("Coincident", 24, 2, 25, 2),
    Sketcher.Constraint("Coincident", 27, 1, 28, 1),
    Sketcher.Constraint("Coincident", 28, 2, 29, 2),
    Sketcher.Constraint("Coincident", 31, 1, 32, 1),
    Sketcher.Constraint("Coincident", 32, 2, 33, 2),
    Sketcher.Constraint("Coincident", 39, 1, 24, 1),
    Sketcher.Constraint("Coincident", 40, 2, 41, 1),
    Sketcher.Constraint("Coincident", 41, 2, 42, 1),
    Sketcher.Constraint("Coincident", 42, 2, 43, 1),
    Sketcher.Constraint("Coincident", 43, 2, 44, 1),
    Sketcher.Constraint("Coincident", 44, 2, 45, 1),
    Sketcher.Constraint("Coincident", 45, 2, 46, 1),
    Sketcher.Constraint("Coincident", 46, 2, 47, 1),
    Sketcher.Constraint("Coincident", 47, 2, 40, 1),
    Sketcher.Constraint("Coincident", 48, 2, 49, 1),
    Sketcher.Constraint("Coincident", 49, 2, 50, 1),
    Sketcher.Constraint("Coincident", 50, 2, 48, 1),
    Sketcher.Constraint("Parallel", 0, 2),
    Sketcher.Constraint("Parallel", 40, 44),
    Sketcher.Constraint("Parallel", 42, 46),
    Sketcher.Constraint("Equal", 0, 2),
    Sketcher.Constraint("Equal", 42, 46),
    Sketcher.Constraint("Angle", 13, Q("1.999992 deg")),
    Sketcher.Constraint("DistanceX", 0, 2, 3, 2, Q("0.0063001 in")),
    Sketcher.Constraint("DistanceY", 3, 2, 9, 2, Q("0.1328 mm")),
    Sketcher.Constraint("DistanceY", 6, 2, 10, 2, Q("0.268399 mm")),
    Sketcher.Constraint("DistanceX", 9, 2, 11, 2, Q("0.444901 mm")),
    Sketcher.Constraint("DistanceY", 12, 2, 3, 2, Q("0.2307 mm")),
    Sketcher.Constraint("DistanceY", 19, 2, 7, 2, Q("0.095101 mm")),
    Sketcher.Constraint("DistanceX", 42, 2, 43, 2, Q("0.067799 mm")),
    Sketcher.Constraint("DistanceY", 44, 2, 28, 2, Q("0.227899 mm")),
    Sketcher.Constraint("DistanceY", 41, 2, 49, 2, Q("0.2165 mm")),
    Sketcher.Constraint("Distance", 6, Q("0.424229 mm")),
    Sketcher.Constraint("Distance", 10, Q("0.21661 mm")),
    Sketcher.Constraint("Distance", 13, Q("0.120281 mm")),
    Sketcher.Constraint("Distance", 18, Q("0.12932 mm")),
    Sketcher.Constraint("Distance", 41, Q("0.676142 mm")),
    Sketcher.Constraint("Distance", 42, Q("0.124819 mm")),
    Sketcher.Constraint("Distance", 50, Q("0.232419 mm")),
    Sketcher.Constraint("DistanceX", 0, 2, -1, 1, Q("1.073681 mm")),
    Sketcher.Constraint("DistanceY", -1, 1, 0, 2, Q("7.14995 mm")),
    Sketcher.Constraint("DistanceY", -1, 1, 3, 2, Q("6.815659 mm")),
    Sketcher.Constraint("DistanceX", 4, 2, -1, 1, Q("0.688891 mm")),
    Sketcher.Constraint("DistanceY", -1, 1, 6, 2, Q("6.895289 mm")),
    Sketcher.Constraint("DistanceX", 7, 2, -1, 1, Q("0.640172 mm")),
    Sketcher.Constraint("DistanceX", 8, 2, -1, 1, Q("0.78353 mm")),
    Sketcher.Constraint("DistanceX", 10, 2, -1, 1, Q("0.95322 mm")),
    Sketcher.Constraint("DistanceX", 12, 2, -1, 1, Q("0.461762 mm")),
    Sketcher.Constraint("DistanceY", -1, 1, 18, 2, Q("7.103059 mm")),
    Sketcher.Constraint("DistanceX", 23, 2, -1, 1, Q("0.355038 mm")),
    Sketcher.Constraint("DistanceY", -1, 1, 23, 2, Q("6.97382 mm")),
    Sketcher.Constraint("DistanceY", -1, 1, 40, 2, Q("7.179671 mm")),
    Sketcher.Constraint("DistanceY", -1, 1, 42, 2, Q("6.569221 mm")),
    Sketcher.Constraint("DistanceY", -1, 1, 46, 2, Q("6.507019 mm")),
    Sketcher.Constraint("DistanceX", -1, 1, 47, 2, Q("0.922781 mm")),
    Sketcher.Constraint("DistanceX", -1, 1, 49, 2, Q("0.73045 mm")),
    Sketcher.Constraint("DistanceY", -1, 1, 50, 2, Q("7.005911 mm")),
    Sketcher.Constraint("DistanceX", 1, 2, 3, 2, Q("0.088788 mm")),
    Sketcher.Constraint("DistanceY", 2, 2, 4, 2, Q("0.021879 mm")),
    Sketcher.Constraint("DistanceX", 2, 2, 5, 2, Q("0.334291 mm")),
    Sketcher.Constraint("DistanceY", 5, 2, 3, 2, Q("0.239651 mm")),
    Sketcher.Constraint("DistanceY", 1, 2, 5, 2, Q("0.051772 mm")),
    Sketcher.Constraint("DistanceY", 8, 2, 7, 2, Q("0.016409 mm")),
    Sketcher.Constraint("DistanceY", 7, 2, 11, 2, Q("0.017219 mm")),
    Sketcher.Constraint("DistanceX", 41, 2, 40, 2, Q("0.322461 mm")),
    Sketcher.Constraint("DistanceX", 13, 2, 41, 2, Q("0.821159 mm")),
    Sketcher.Constraint("DistanceY", 43, 2, 24, 2, Q("0.381179 mm")),
    Sketcher.Constraint("DistanceX", 43, 2, 44, 2, Q("0.25517 mm")),
    Sketcher.Constraint("DistanceX", 41, 2, 45, 2, Q("0.478921 mm")),
    Sketcher.Constraint("DistanceX", 48, 2, 44, 2, Q("0.029638 mm")),
    Sketcher.Constraint("DistanceY", 44, 2, 48, 2, Q("0.121861 mm")),
])
pocket1 = body.newObject("PartDesign::Pocket", "Pocket")
pocket1.Profile = sketch2
pocket1.Length = Q("0.0025 in")

doc.recompute()
